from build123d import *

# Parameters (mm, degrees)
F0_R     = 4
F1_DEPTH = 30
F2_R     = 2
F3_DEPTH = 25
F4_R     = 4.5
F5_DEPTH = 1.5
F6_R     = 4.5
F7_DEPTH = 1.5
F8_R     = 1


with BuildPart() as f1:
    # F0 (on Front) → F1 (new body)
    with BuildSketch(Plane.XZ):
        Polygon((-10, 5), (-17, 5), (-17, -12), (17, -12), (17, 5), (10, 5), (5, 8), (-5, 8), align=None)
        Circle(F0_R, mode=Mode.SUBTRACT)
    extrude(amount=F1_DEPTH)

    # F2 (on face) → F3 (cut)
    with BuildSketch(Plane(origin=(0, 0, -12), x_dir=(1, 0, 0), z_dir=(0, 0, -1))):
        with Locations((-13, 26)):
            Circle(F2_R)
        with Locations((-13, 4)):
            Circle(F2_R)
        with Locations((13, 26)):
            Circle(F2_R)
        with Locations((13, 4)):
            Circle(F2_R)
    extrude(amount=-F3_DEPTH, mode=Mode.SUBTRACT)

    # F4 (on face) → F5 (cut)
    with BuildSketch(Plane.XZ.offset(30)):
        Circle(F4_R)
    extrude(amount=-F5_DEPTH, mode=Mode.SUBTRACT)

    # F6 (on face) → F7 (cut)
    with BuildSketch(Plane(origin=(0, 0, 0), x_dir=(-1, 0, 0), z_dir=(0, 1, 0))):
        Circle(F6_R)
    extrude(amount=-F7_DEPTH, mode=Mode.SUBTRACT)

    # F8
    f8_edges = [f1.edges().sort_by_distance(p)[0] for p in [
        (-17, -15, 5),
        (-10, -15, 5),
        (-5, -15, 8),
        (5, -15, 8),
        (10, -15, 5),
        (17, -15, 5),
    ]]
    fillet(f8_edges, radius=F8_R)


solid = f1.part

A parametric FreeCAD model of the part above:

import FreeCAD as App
import Part
import Sketcher


def edges_at(feature, points):
    """Names of the edges that pass closest to the given points."""
    edges = feature.Shape.Edges
    near = lambda p: min(range(len(edges)), key=lambda i: edges[i].distToShape(Part.Vertex(*p))[0])
    return sorted({f"Edge{near(p) + 1}" for p in points})


def add_polygon(sketch, points):
    """Adds a closed chain of lines whose ends are joined by coincident constraints."""
    first, n = sketch.GeometryCount, len(points)
    for a, b in zip(points, points[1:] + points[:1]):
        sketch.addGeometry(Part.LineSegment(App.Vector(*a, 0), App.Vector(*b, 0)), False)
    for i in range(n):
        sketch.addConstraint(Sketcher.Constraint("Coincident", first + i, 2, first + (i + 1) % n, 1))

doc = App.newDocument("Part")
body = doc.addObject("PartDesign::Body", "Body")

# Sketch on XZ plane
sketch1 = doc.addObject("Sketcher::SketchObject", "Sketch")
body.addObject(sketch1)
sketch1.AttachmentSupport = (doc.XZ_Plane, [""])
sketch1.MapMode = "FlatFace"
add_polygon(sketch1, [(-10, 5), (-17, 5), (-17, -12), (17, -12), (17, 5), (10, 5), (5, 8), (-5, 8)])  # lines 0-7
sketch1.addGeometry(Part.Circle(App.Vector(0, 0, 0), App.Vector(0, 0, 1), 4), False)  # 8
sketch1.addConstraint(Sketcher.Constraint("Horizontal", 0))
sketch1.addConstraint(Sketcher.Constraint("Vertical", 1))
sketch1.addConstraint(Sketcher.Constraint("Horizontal", 2))
sketch1.addConstraint(Sketcher.Constraint("Vertical", 3))
sketch1.addConstraint(Sketcher.Constraint("Horizontal", 4))
sketch1.addConstraint(Sketcher.Constraint("Horizontal", 6))
sketch1.addConstraint(Sketcher.Constraint("Coincident", 8, 3, -1, 1))
sketch1.addConstraint(Sketcher.Constraint("Symmetric", 0, 2, 3, 2, -2))
sketch1.addConstraint(Sketcher.Constraint("Equal", 0, 4))
sketch1.addConstraint(Sketcher.Constraint("Equal", 5, 7))
sketch1.addConstraint(Sketcher.Constraint("Diameter", 8, 8.0))
sketch1.addConstraint(Sketcher.Constraint("DistanceX", 0, 2, 0, 1, 7.0))
sketch1.addConstraint(Sketcher.Constraint("DistanceX", 2, 1, 2, 2, 34.0))
sketch1.addConstraint(Sketcher.Constraint("DistanceX", 6, 2, 6, 1, 10.0))
sketch1.addConstraint(Sketcher.Constraint("DistanceY", 1, 2, 1, 1, 17.0))
sketch1.addConstraint(Sketcher.Constraint("DistanceY", -1, 1, 0, 2, 5.0))
sketch1.addConstraint(Sketcher.Constraint("DistanceY", -1, 1, 5, 2, 8.0))
pad1 = doc.addObject("PartDesign::Pad", "Pad")
body.addObject(pad1)
pad1.Profile = sketch1
pad1.Length = 30

# Sketch on XY plane
sketch2 = doc.addObject("Sketcher::SketchObject", "Sketch001")
body.addObject(sketch2)
sketch2.AttachmentSupport = (doc.XY_Plane, [""])
sketch2.MapMode = "FlatFace"
sketch2.AttachmentOffset = App.Placement(App.Vector(0, 0, -12), App.Rotation())
sketch2.addGeometry(Part.Circle(App.Vector(-13, -26, 0), App.Vector(0, 0, 1), 2), False)
sketch2.addGeometry(Part.Circle(App.Vector(-13, -4, 0), App.Vector(0, 0, 1), 2), False)
sketch2.addGeometry(Part.Circle(App.Vector(13, -26, 0), App.Vector(0, 0, 1), 2), False)
sketch2.addGeometry(Part.Circle(App.Vector(13, -4, 0), App.Vector(0, 0, 1), 2), False)
sketch2.addConstraint(Sketcher.Constraint("Equal", 0, 1))
sketch2.addConstraint(Sketcher.Constraint("Equal", 1, 2))
sketch2.addConstraint(Sketcher.Constraint("Equal", 2, 3))
sketch2.addConstraint(Sketcher.Constraint("Symmetric", 0, 3, 2, 3, -2))
sketch2.addConstraint(Sketcher.Constraint("Symmetric", 1, 3, 3, 3, -2))
sketch2.addConstraint(Sketcher.Constraint("Vertical", 0, 3, 1, 3))
sketch2.addConstraint(Sketcher.Constraint("Diameter", 0, 4.0))
sketch2.addConstraint(Sketcher.Constraint("DistanceX", 0, 3, -1, 1, 13.0))
sketch2.addConstraint(Sketcher.Constraint("DistanceY", 0, 3, -1, 1, 26.0))
sketch2.addConstraint(Sketcher.Constraint("DistanceY", 1, 3, -1, 1, 4.0))
pocket1 = doc.addObject("PartDesign::Pocket", "Pocket")
body.addObject(pocket1)
pocket1.Profile = sketch2
pocket1.Length = 25
pocket1.Reversed = True

# Sketch on XZ plane
sketch3 = doc.addObject("Sketcher::SketchObject", "Sketch002")
body.addObject(sketch3)
sketch3.AttachmentSupport = (doc.XZ_Plane, [""])
sketch3.MapMode = "FlatFace"
sketch3.AttachmentOffset = App.Placement(App.Vector(0, 0, 30), App.Rotation())
sketch3.addGeometry(Part.Circle(App.Vector(0, 0, 0), App.Vector(0, 0, 1), 4.5), False)
sketch3.addConstraint(Sketcher.Constraint("Coincident", 0, 3, -1, 1))
sketch3.addConstraint(Sketcher.Constraint("Diameter", 0, 9.0))
pocket2 = doc.addObject("PartDesign::Pocket", "Pocket001")
body.addObject(pocket2)
pocket2.Profile = sketch3
pocket2.Length = 1.5

# Sketch on XZ plane
sketch4 = doc.addObject("Sketcher::SketchObject", "Sketch003")
body.addObject(sketch4)
sketch4.AttachmentSupport = (doc.XZ_Plane, [""])
sketch4.MapMode = "FlatFace"
sketch4.addGeometry(Part.Circle(App.Vector(0, 0, 0), App.Vector(0, 0, 1), 4.5), False)
sketch4.addConstraint(Sketcher.Constraint("Coincident", 0, 3, -1, 1))
sketch4.addConstraint(Sketcher.Constraint("Diameter", 0, 9.0))
pocket3 = doc.addObject("PartDesign::Pocket", "Pocket002")
body.addObject(pocket3)
pocket3.Profile = sketch4
pocket3.Length = 1.5
pocket3.Reversed = True
doc.recompute()

fillet = doc.addObject("PartDesign::Fillet", "Fillet")
body.addObject(fillet)
fillet.Base = (pocket3, edges_at(pocket3, [
    (-17, -15, 5),
    (-10, -15, 5),
    (-5, -15, 8),
    (5, -15, 8),
    (10, -15, 5),
    (17, -15, 5),
]))
fillet.Radius = 1

doc.recompute()
